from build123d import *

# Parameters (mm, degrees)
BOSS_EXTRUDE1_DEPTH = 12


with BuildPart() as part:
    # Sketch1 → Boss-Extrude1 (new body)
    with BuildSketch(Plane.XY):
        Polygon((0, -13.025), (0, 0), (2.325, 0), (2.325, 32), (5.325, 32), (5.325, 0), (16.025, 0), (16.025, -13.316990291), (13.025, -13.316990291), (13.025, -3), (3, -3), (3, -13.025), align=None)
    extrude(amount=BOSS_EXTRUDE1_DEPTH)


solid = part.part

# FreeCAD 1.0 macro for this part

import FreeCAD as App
import Part
import Sketcher

V = App.Vector

doc = App.newDocument("Part")
body = doc.addObject("PartDesign::Body", "Body")

sketch1 = body.newObject("Sketcher::SketchObject", "Sketch")
sketch1.AttachmentSupport = (doc.getObject("XY_Plane"), [""])
sketch1.MapMode = "FlatFace"
sketch1.addGeometry([
    Part.LineSegment(V(0, 0, 0), V(0, -13, 0)),
    Part.LineSegment(V(0, -13, 0), V(3, -13, 0)),
    Part.LineSegment(V(3, -13, 0), V(3, -3, 0)),
    Part.LineSegment(V(3, -3, 0), V(13, -3, 0)),
    Part.LineSegment(V(13, -3, 0), V(13, -13.3, 0)),
    Part.LineSegment(V(13, -13.3, 0), V(16, -13.3, 0)),
    Part.LineSegment(V(16, -13.3, 0), V(16, 0, 0)),
    Part.LineSegment(V(16, 0, 0), V(5.3, 0, 0)),
    Part.LineSegment(V(5.3, 0, 0), V(5.3, 32, 0)),
    Part.LineSegment(V(5.3, 32, 0), V(2.3, 32, 0)),
    Part.LineSegment(V(2.3, 32, 0), V(2.3, 0, 0)),
    Part.LineSegment(V(2.3, 0, 0), V(0, 0, 0)),
], False)
sketch1.addConstraint([
    Sketcher.Constraint("Coincident", 0, 2, 1, 1),
    Sketcher.Constraint("Coincident", 1, 2, 2, 1),
    Sketcher.Constraint("Coincident", 2, 2, 3, 1),
    Sketcher.Constraint("Coincident", 3, 2, 4, 1),
    Sketcher.Constraint("Coincident", 4, 2, 5, 1),
    Sketcher.Constraint("Coincident", 5, 2, 6, 1),
    Sketcher.Constraint("Coincident", 6, 2, 7, 1),
    Sketcher.Constraint("Coincident", 7, 2, 8, 1),
    Sketcher.Constraint("Coincident", 8, 2, 9, 1),
    Sketcher.Constraint("Coincident", 9, 2, 10, 1),
    Sketcher.Constraint("Coincident", 10, 2, 11, 1),
    Sketcher.Constraint("Coincident", 11, 2, 0, 1),
    Sketcher.Constraint("Vertical", 0),
    Sketcher.Constraint("Horizontal", 1),
    Sketcher.Constraint("Vertical", 2),
    Sketcher.Constraint("Horizontal", 3),
    Sketcher.Constraint("Vertical", 4),
    Sketcher.Constraint("Horizontal", 5),
    Sketcher.Constraint("Vertical", 6),
    Sketcher.Constraint("Horizontal", 7),
    Sketcher.Constraint("Vertical", 8),
    Sketcher.Constraint("Horizontal", 9),
    Sketcher.Constraint("Vertical", 10),
    Sketcher.Constraint("Horizontal", 11),
    Sketcher.Constraint("Coincident", 11, 2, -1, 1),
    Sketcher.Constraint("PointOnObject", 6, 2, -1),
    Sketcher.Constraint("Equal", 1, 5),
    Sketcher.Constraint("Equal", 5, 9),
    Sketcher.Constraint("Equal", 3, 2),
    Sketcher.Constraint("DistanceX", 1, 1, 1, 2, 3.0),
    Sketcher.Constraint("DistanceY", 8, 1, 8, 2, 32.0),
    Sketcher.Constraint("DistanceX", 7, 2, 7, 1, 10.7),
    Sketcher.Constraint("DistanceY", 2, 2, -1, 1, 3.0),
    Sketcher.Constraint("DistanceX", 3, 1, 3, 2, 10.025),
    Sketcher.Constraint("DistanceY", 4, 2, 4, 1, 10.31699),
])
pad1 = body.newObject("PartDesign::Pad", "Pad")
pad1.Profile = sketch1
pad1.Length = 12

doc.recompute()
